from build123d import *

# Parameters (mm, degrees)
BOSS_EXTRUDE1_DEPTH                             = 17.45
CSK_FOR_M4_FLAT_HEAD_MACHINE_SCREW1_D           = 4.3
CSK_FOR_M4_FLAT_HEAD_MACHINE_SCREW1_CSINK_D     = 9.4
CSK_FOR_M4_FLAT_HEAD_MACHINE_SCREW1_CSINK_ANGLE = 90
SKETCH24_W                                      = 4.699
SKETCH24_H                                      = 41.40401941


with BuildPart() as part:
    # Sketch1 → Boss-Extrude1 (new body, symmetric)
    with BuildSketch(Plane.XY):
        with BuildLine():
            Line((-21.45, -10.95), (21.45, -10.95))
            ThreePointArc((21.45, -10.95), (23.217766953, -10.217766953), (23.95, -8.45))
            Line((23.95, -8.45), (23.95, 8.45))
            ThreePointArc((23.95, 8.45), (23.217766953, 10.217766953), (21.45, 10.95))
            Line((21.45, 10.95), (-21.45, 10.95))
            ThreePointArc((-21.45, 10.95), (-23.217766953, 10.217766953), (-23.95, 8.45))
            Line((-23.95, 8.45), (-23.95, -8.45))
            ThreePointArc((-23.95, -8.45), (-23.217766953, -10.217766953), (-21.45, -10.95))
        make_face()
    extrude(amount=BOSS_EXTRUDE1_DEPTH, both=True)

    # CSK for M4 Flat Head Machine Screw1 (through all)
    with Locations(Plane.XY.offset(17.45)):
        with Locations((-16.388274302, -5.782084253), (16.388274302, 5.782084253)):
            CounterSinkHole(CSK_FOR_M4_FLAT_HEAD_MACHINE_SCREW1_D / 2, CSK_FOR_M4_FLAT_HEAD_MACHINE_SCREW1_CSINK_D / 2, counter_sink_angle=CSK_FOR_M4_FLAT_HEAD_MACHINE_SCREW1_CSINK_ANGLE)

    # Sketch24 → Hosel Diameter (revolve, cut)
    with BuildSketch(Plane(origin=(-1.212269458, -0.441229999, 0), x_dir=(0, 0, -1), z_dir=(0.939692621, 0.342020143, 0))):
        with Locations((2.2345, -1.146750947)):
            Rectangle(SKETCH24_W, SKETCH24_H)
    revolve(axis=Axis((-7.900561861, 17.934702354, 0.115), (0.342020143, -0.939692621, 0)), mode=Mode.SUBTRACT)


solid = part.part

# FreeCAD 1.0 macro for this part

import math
import FreeCAD as App
import Part
import Sketcher


def add_polygon(sketch, points):
    """Adds a closed chain of lines whose ends are joined by coincident constraints."""
    first, n = sketch.GeometryCount, len(points)
    for a, b in zip(points, points[1:] + points[:1]):
        sketch.addGeometry(Part.LineSegment(App.Vector(*a, 0), App.Vector(*b, 0)), False)
    for i in range(n):
        sketch.addConstraint(Sketcher.Constraint("Coincident", first + i, 2, first + (i + 1) % n, 1))

doc = App.newDocument("Part")
params = doc.addObject("Spreadsheet::Sheet", "Params")
for row, (alias, value) in enumerate([
    ("sketch1_radius", "2.5 mm"),
    ("sketch1_width", "42.9 mm"),
    ("sketch1_height", "16.9 mm"),
    ("pad1_length", "34.9 mm"),
    ("sketch2_diameter", "4.3 mm"),
    ("hole_diameter", "4.3 mm"),
    ("hole_csink_diameter", "9.4 mm"),
    ("groove_angle", "360 deg"),
], start=1):
    params.set(f"A{row}", alias)
    params.set(f"B{row}", "=" + value)
    params.setAlias(f"B{row}", alias)

body = doc.addObject("PartDesign::Body", "Body")

sketch1 = body.newObject("Sketcher::SketchObject", "Sketch")
sketch1.AttachmentSupport = (doc.getObject("XY_Plane"), [""])
sketch1.MapMode = "FlatFace"
sketch1.addGeometry(Part.LineSegment(App.Vector(-21.4, -10.9, 0), App.Vector(21.4, -10.9, 0)), False)
sketch1.addGeometry(Part.ArcOfCircle(Part.Circle(App.Vector(21.4, -8.4, 0), App.Vector(0, 0, 1), 2.5), math.radians(-90), math.radians(0)), False)
sketch1.addGeometry(Part.LineSegment(App.Vector(23.9, -8.4, 0), App.Vector(23.9, 8.4, 0)), False)
sketch1.addGeometry(Part.ArcOfCircle(Part.Circle(App.Vector(21.4, 8.4, 0), App.Vector(0, 0, 1), 2.5), math.radians(0), math.radians(90)), False)
sketch1.addGeometry(Part.LineSegment(App.Vector(21.4, 10.9, 0), App.Vector(-21.4, 10.9, 0)), False)
sketch1.addGeometry(Part.ArcOfCircle(Part.Circle(App.Vector(-21.4, 8.4, 0), App.Vector(0, 0, 1), 2.5), math.radians(90), math.radians(180)), False)
sketch1.addGeometry(Part.LineSegment(App.Vector(-23.9, 8.4, 0), App.Vector(-23.9, -8.4, 0)), False)
sketch1.addGeometry(Part.ArcOfCircle(Part.Circle(App.Vector(-21.4, -8.4, 0), App.Vector(0, 0, 1), 2.5), math.radians(180), math.radians(270)), False)
sketch1.addConstraint(Sketcher.Constraint("Tangent", 0, 2, 1, 1))
sketch1.addConstraint(Sketcher.Constraint("Tangent", 1, 2, 2, 1))
sketch1.addConstraint(Sketcher.Constraint("Tangent", 2, 2, 3, 1))
sketch1.addConstraint(Sketcher.Constraint("Tangent", 3, 2, 4, 1))
sketch1.addConstraint(Sketcher.Constraint("Tangent", 4, 2, 5, 1))
sketch1.addConstraint(Sketcher.Constraint("Tangent", 5, 2, 6, 1))
sketch1.addConstraint(Sketcher.Constraint("Tangent", 6, 2, 7, 1))
sketch1.addConstraint(Sketcher.Constraint("Tangent", 7, 2, 0, 1))
sketch1.addConstraint(Sketcher.Constraint("Horizontal", 0))
sketch1.addConstraint(Sketcher.Constraint("Vertical", 2))
sketch1.addConstraint(Sketcher.Constraint("Horizontal", 4))
sketch1.addConstraint(Sketcher.Constraint("Vertical", 6))
sketch1.addConstraint(Sketcher.Constraint("Equal", 1, 3))
sketch1.addConstraint(Sketcher.Constraint("Equal", 3, 5))
sketch1.addConstraint(Sketcher.Constraint("Equal", 5, 7))
sketch1.addConstraint(Sketcher.Constraint("Symmetric", 1, 3, 5, 3, -1, 1))
sketch1.addConstraint(Sketcher.Constraint("Radius", 1, 2.5))
sketch1.addConstraint(Sketcher.Constraint("DistanceX", 0, 1, 0, 2, 42.9))
sketch1.addConstraint(Sketcher.Constraint("DistanceY", 2, 1, 2, 2, 16.9))
sketch1.setExpression("Constraints[16]", "Params.sketch1_radius")
sketch1.setExpression("Constraints[17]", "Params.sketch1_width")
sketch1.setExpression("Constraints[18]", "Params.sketch1_height")
pad1 = body.newObject("PartDesign::Pad", "Pad")
pad1.Profile = sketch1
pad1.setExpression("Length", "Params.pad1_length")
pad1.Midplane = True

sketch2 = body.newObject("Sketcher::SketchObject", "Sketch001")
sketch2.AttachmentSupport = (doc.getObject("XY_Plane"), [""])
sketch2.MapMode = "FlatFace"
sketch2.AttachmentOffset = App.Placement(App.Vector(0, 0, 17.45), App.Rotation())
sketch2.addGeometry(Part.Circle(App.Vector(-16.4, -5.8, 0), App.Vector(0, 0, 1), 2.1), False)
sketch2.addGeometry(Part.Circle(App.Vector(16.4, 5.8, 0), App.Vector(0, 0, 1), 2.1), False)
sketch2.addConstraint(Sketcher.Constraint("Equal", 0, 1))
sketch2.addConstraint(Sketcher.Constraint("Symmetric", 0, 3, 1, 3, -1, 1))
sketch2.addConstraint(Sketcher.Constraint("Diameter", 0, 4.3))
sketch2.addConstraint(Sketcher.Constraint("DistanceX", 0, 3, 1, 3, 32.776549))
sketch2.addConstraint(Sketcher.Constraint("DistanceY", 0, 3, 1, 3, 11.564169))
sketch2.setExpression("Constraints[2]", "Params.sketch2_diameter")
doc.recompute()
hole = body.newObject("PartDesign::Hole", "Hole")
hole.Profile = sketch2
hole.ThreadType = "None"
hole.setExpression("Diameter", "Params.hole_diameter")
hole.DepthType = "ThroughAll"
hole.HoleCutType = "Countersink"
hole.setExpression("HoleCutDiameter", "Params.hole_csink_diameter")
hole.HoleCutCountersinkAngle = 90

sketch3 = body.newObject("Sketcher::SketchObject", "Sketch002")
sketch3.Placement = App.Placement(App.Vector(-1.212269, -0.44123, 0), App.Rotation(App.Vector(0, 0, -1), App.Vector(-0.342020143, 0.939692621, 0), App.Vector(0.939692621, 0.342020143, 0), "ZXY"))
add_polygon(sketch3, [(-0.1, 19.6), (-0.1, -21.8), (4.6, -21.8), (4.6, 19.6)])
sketch3.addGeometry(Part.LineSegment(App.Vector(-0.1, 19.6, 0), App.Vector(-0.1, -21.8, 0)), True)
sketch3.addConstraint(Sketcher.Constraint("Vertical", 0))
sketch3.addConstraint(Sketcher.Constraint("Horizontal", 1))
sketch3.addConstraint(Sketcher.Constraint("Vertical", 2))
sketch3.addConstraint(Sketcher.Constraint("Horizontal", 3))
sketch3.addConstraint(Sketcher.Constraint("Vertical", 4))
sketch3.addConstraint(Sketcher.Constraint("Coincident", 4, 1, 3, 2))
sketch3.addConstraint(Sketcher.Constraint("Horizontal", 1, 2, 4, 2))
sketch3.addConstraint(Sketcher.Constraint("DistanceX", 1, 1, 1, 2, 4.699))
sketch3.addConstraint(Sketcher.Constraint("DistanceX", 0, 2, -1, 1, 0.115))
sketch3.addConstraint(Sketcher.Constraint("DistanceY", 0, 2, 0, 1, 41.404019))
sketch3.addConstraint(Sketcher.Constraint("DistanceY", 0, 2, -1, 1, 21.848761))
groove = body.newObject("PartDesign::Groove", "Groove")
groove.Profile = sketch3
groove.ReferenceAxis = (sketch3, ["Axis0"])
groove.setExpression("Angle", "Params.groove_angle")

doc.recompute()
